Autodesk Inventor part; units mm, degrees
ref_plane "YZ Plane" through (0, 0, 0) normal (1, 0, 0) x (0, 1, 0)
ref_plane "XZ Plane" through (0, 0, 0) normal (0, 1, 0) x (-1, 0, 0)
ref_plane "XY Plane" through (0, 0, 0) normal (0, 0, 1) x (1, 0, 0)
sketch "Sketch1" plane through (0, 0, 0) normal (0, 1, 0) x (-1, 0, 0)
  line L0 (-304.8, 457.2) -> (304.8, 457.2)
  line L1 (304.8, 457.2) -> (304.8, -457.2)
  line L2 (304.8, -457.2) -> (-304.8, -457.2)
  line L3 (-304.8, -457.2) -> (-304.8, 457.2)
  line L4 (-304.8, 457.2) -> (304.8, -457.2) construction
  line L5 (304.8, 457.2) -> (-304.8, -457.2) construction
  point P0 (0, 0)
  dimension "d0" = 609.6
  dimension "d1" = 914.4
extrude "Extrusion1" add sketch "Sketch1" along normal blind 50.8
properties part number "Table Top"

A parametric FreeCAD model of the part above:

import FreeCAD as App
import Part
import Sketcher
from FreeCAD import Vector
Q = App.Units.Quantity


def add_polygon(sketch, points):
    """Adds a closed chain of lines whose ends are joined by coincident constraints."""
    first, n = sketch.GeometryCount, len(points)
    for a, b in zip(points, points[1:] + points[:1]):
        sketch.addGeometry(Part.LineSegment(App.Vector(*a, 0), App.Vector(*b, 0)), False)
    for i in range(n):
        sketch.addConstraint(Sketcher.Constraint("Coincident", first + i, 2, first + (i + 1) % n, 1))

doc = App.newDocument("Part")
body = doc.addObject("PartDesign::Body", "Body")

sketch1 = body.newObject("Sketcher::SketchObject", "Sketch")
sketch1.AttachmentSupport = (doc.getObject("XZ_Plane"), [""])
sketch1.MapMode = "FlatFace"
add_polygon(sketch1, [(-305, 457), (305, 457), (305, -457), (-305, -457)])
sketch1.addConstraint(Sketcher.Constraint("Horizontal", 0))
sketch1.addConstraint(Sketcher.Constraint("Vertical", 1))
sketch1.addConstraint(Sketcher.Constraint("Horizontal", 2))
sketch1.addConstraint(Sketcher.Constraint("Vertical", 3))
sketch1.addConstraint(Sketcher.Constraint("Symmetric", 0, 2, 2, 2, -1, 1))
sketch1.addConstraint(Sketcher.Constraint("DistanceX", 0, 1, 0, 2, Q("24 in")))
sketch1.addConstraint(Sketcher.Constraint("DistanceY", 1, 2, 1, 1, Q("36 in")))
pad1 = body.newObject("PartDesign::Pad", "Pad")
pad1.Profile = sketch1
pad1.Length = Q("2 in")
pad1.Reversed = True

doc.recompute()
